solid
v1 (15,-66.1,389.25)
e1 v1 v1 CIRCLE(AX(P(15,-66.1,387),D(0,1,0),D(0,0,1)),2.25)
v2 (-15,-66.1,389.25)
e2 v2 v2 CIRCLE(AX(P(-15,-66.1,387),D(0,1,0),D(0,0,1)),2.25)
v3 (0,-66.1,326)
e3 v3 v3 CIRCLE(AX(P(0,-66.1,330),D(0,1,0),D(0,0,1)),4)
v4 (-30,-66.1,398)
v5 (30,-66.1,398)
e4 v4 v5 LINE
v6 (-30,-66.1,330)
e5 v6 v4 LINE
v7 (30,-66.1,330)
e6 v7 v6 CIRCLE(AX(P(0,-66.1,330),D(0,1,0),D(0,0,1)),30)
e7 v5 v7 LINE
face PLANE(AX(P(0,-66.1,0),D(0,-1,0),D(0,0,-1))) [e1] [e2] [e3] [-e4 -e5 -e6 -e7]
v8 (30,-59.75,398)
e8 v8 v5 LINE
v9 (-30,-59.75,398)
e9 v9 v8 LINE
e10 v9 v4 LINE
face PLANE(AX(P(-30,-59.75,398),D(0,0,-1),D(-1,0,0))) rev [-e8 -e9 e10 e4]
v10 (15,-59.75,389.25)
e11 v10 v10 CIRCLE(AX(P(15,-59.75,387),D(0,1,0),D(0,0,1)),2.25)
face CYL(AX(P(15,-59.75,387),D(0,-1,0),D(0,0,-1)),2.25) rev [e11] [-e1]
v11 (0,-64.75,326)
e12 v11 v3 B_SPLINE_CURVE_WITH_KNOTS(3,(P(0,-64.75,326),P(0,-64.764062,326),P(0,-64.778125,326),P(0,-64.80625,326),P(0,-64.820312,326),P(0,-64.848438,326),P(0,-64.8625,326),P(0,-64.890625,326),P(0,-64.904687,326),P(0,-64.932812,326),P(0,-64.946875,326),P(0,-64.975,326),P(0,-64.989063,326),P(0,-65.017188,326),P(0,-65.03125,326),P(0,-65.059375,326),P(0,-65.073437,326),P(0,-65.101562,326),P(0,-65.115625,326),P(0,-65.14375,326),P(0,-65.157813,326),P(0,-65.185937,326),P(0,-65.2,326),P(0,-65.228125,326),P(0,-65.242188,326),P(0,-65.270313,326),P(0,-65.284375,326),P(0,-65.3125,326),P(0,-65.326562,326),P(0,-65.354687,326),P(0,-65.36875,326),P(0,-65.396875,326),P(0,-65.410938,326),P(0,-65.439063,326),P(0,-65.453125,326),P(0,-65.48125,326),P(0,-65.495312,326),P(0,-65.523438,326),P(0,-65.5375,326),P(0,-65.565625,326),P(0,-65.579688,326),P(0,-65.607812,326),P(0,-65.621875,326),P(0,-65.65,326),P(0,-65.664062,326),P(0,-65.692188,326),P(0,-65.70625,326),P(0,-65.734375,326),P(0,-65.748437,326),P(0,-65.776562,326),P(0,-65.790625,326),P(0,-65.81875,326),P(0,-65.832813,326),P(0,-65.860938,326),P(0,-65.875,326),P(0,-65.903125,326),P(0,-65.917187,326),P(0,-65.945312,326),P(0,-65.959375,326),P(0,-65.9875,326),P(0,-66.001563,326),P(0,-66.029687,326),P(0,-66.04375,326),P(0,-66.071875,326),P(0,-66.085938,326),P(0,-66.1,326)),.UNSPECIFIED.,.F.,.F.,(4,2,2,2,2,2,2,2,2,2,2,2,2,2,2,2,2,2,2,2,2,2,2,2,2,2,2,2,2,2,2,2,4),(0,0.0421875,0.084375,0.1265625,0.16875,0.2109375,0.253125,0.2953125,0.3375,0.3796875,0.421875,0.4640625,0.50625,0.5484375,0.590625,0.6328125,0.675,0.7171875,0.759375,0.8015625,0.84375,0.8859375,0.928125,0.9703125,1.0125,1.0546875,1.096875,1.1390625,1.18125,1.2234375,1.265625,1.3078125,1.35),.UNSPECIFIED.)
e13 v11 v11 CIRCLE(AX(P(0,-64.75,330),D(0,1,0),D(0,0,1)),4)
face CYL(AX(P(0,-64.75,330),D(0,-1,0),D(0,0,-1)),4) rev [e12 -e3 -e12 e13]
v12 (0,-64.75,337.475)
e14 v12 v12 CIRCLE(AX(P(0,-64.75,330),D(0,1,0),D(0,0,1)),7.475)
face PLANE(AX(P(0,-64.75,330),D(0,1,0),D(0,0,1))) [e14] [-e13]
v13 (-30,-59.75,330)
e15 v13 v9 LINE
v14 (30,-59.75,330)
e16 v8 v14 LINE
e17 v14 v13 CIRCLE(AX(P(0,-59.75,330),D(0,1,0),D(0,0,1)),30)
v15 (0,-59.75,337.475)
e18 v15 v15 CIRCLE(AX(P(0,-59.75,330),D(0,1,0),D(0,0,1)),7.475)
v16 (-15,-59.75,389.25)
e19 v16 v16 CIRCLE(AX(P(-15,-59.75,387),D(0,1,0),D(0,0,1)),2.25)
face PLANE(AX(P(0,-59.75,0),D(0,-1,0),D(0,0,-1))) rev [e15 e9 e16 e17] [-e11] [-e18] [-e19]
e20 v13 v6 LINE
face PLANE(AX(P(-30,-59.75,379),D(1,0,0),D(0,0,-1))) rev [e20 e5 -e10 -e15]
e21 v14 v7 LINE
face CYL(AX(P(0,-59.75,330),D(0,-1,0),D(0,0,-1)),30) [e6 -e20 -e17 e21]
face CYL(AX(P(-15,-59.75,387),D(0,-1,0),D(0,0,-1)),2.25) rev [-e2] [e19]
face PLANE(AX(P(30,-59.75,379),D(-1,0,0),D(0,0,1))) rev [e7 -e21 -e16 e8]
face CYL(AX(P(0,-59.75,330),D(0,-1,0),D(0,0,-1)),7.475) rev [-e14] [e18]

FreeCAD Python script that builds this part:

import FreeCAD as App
import Part
import Sketcher


def add_polygon(sketch, points):
    """Adds a closed chain of lines whose ends are joined by coincident constraints."""
    first, n = sketch.GeometryCount, len(points)
    for a, b in zip(points, points[1:] + points[:1]):
        sketch.addGeometry(Part.LineSegment(App.Vector(*a, 0), App.Vector(*b, 0)), False)
    for i in range(n):
        sketch.addConstraint(Sketcher.Constraint("Coincident", first + i, 2, first + (i + 1) % n, 1))

doc = App.newDocument("Part")
body = doc.addObject("PartDesign::Body", "Body")

# Sketch on XZ plane
sketch1 = body.newObject("Sketcher::SketchObject", "Sketch")
sketch1.AttachmentSupport = (doc.getObject("XZ_Plane"), [""])
sketch1.MapMode = "FlatFace"
sketch1.AttachmentOffset = App.Placement(App.Vector(0, 0, 66.1), App.Rotation())
add_polygon(sketch1, [(-30, 330), (-30, 379), (30, 379), (30, 330)])  # lines 0-3
sketch1.addConstraint([
    Sketcher.Constraint("Vertical", 0),
    Sketcher.Constraint("Horizontal", 1),
    Sketcher.Constraint("Vertical", 2),
    Sketcher.Constraint("Horizontal", 3),
    Sketcher.Constraint("DistanceX", 1, 1, 1, 2, 60.0),
    Sketcher.Constraint("DistanceY", 0, 1, 0, 2, 49.0),
    Sketcher.Constraint("DistanceX", 0, 2, -1, 1, 30.0),
    Sketcher.Constraint("DistanceY", -1, 1, 0, 2, 379.0),
])
pad1 = body.newObject("PartDesign::Pad", "Pad")
pad1.Profile = sketch1
pad1.Length = 6.35
pad1.Reversed = True

# Sketch on XZ plane
sketch2 = body.newObject("Sketcher::SketchObject", "Sketch001")
sketch2.AttachmentSupport = (doc.getObject("XZ_Plane"), [""])
sketch2.MapMode = "FlatFace"
sketch2.AttachmentOffset = App.Placement(App.Vector(0, 0, 66.1), App.Rotation())
sketch2.addGeometry(Part.Circle(App.Vector(0, 330, 0), App.Vector(0, 0, 1), 30), False)
sketch2.addConstraint([
    Sketcher.Constraint("PointOnObject", 0, 3, -2),
    Sketcher.Constraint("Diameter", 0, 60.0),
    Sketcher.Constraint("DistanceY", -1, 1, 0, 3, 330.0),
])
pad2 = body.newObject("PartDesign::Pad", "Pad001")
pad2.Profile = sketch2
pad2.Length = 6.35
pad2.Reversed = True

# Sketch on XZ plane
sketch3 = body.newObject("Sketcher::SketchObject", "Sketch002")
sketch3.AttachmentSupport = (doc.getObject("XZ_Plane"), [""])
sketch3.MapMode = "FlatFace"
sketch3.AttachmentOffset = App.Placement(App.Vector(0, 0, 64.75), App.Rotation())
sketch3.addGeometry(Part.Circle(App.Vector(0, 330, 0), App.Vector(0, 0, 1), 7), False)
sketch3.addConstraint([
    Sketcher.Constraint("PointOnObject", 0, 3, -2),
    Sketcher.Constraint("Diameter", 0, 14.95),
    Sketcher.Constraint("DistanceY", -1, 1, 0, 3, 330.0),
])
pocket1 = body.newObject("PartDesign::Pocket", "Pocket")
pocket1.Profile = sketch3
pocket1.Length = 5

# Sketch on XZ plane
sketch4 = body.newObject("Sketcher::SketchObject", "Sketch003")
sketch4.AttachmentSupport = (doc.getObject("XZ_Plane"), [""])
sketch4.MapMode = "FlatFace"
sketch4.AttachmentOffset = App.Placement(App.Vector(0, 0, 66.1), App.Rotation())
sketch4.addGeometry(Part.Circle(App.Vector(0, 330, 0), App.Vector(0, 0, 1), 4), False)
sketch4.addConstraint([
    Sketcher.Constraint("PointOnObject", 0, 3, -2),
    Sketcher.Constraint("Diameter", 0, 8.0),
    Sketcher.Constraint("DistanceY", -1, 1, 0, 3, 330.0),
])
pocket2 = body.newObject("PartDesign::Pocket", "Pocket001")
pocket2.Profile = sketch4
pocket2.Length = 1.35

# Sketch on XZ plane
sketch5 = body.newObject("Sketcher::SketchObject", "Sketch004")
sketch5.AttachmentSupport = (doc.getObject("XZ_Plane"), [""])
sketch5.MapMode = "FlatFace"
sketch5.AttachmentOffset = App.Placement(App.Vector(0, 0, 66.1), App.Rotation())
add_polygon(sketch5, [(-30, 379), (-30, 398), (30, 398), (30, 379)])  # lines 0-3
sketch5.addConstraint([
    Sketcher.Constraint("Vertical", 0),
    Sketcher.Constraint("Horizontal", 1),
    Sketcher.Constraint("Vertical", 2),
    Sketcher.Constraint("Horizontal", 3),
    Sketcher.Constraint("DistanceX", 1, 1, 1, 2, 60.0),
    Sketcher.Constraint("DistanceY", 0, 1, 0, 2, 19.0),
    Sketcher.Constraint("DistanceX", 0, 2, -1, 1, 30.0),
    Sketcher.Constraint("DistanceY", -1, 1, 0, 2, 398.0),
])
pad3 = body.newObject("PartDesign::Pad", "Pad002")
pad3.Profile = sketch5
pad3.Length = 6.35
pad3.Reversed = True

# Sketch on XZ plane
sketch6 = body.newObject("Sketcher::SketchObject", "Sketch005")
sketch6.AttachmentSupport = (doc.getObject("XZ_Plane"), [""])
sketch6.MapMode = "FlatFace"
sketch6.AttachmentOffset = App.Placement(App.Vector(0, 0, 66.1), App.Rotation())
sketch6.addGeometry([
    Part.Circle(App.Vector(-15, 387, 0), App.Vector(0, 0, 1), 2.2),
    Part.Circle(App.Vector(15, 387, 0), App.Vector(0, 0, 1), 2.2),
], False)
sketch6.addConstraint([
    Sketcher.Constraint("Equal", 0, 1),
    Sketcher.Constraint("Symmetric", 0, 3, 1, 3, -2),
    Sketcher.Constraint("Diameter", 0, 4.5),
    Sketcher.Constraint("DistanceX", 0, 3, -1, 1, 15.0),
    Sketcher.Constraint("DistanceY", -1, 1, 0, 3, 387.0),
])
pocket3 = body.newObject("PartDesign::Pocket", "Pocket002")
pocket3.Profile = sketch6
pocket3.Length = 6.35

doc.recompute()
